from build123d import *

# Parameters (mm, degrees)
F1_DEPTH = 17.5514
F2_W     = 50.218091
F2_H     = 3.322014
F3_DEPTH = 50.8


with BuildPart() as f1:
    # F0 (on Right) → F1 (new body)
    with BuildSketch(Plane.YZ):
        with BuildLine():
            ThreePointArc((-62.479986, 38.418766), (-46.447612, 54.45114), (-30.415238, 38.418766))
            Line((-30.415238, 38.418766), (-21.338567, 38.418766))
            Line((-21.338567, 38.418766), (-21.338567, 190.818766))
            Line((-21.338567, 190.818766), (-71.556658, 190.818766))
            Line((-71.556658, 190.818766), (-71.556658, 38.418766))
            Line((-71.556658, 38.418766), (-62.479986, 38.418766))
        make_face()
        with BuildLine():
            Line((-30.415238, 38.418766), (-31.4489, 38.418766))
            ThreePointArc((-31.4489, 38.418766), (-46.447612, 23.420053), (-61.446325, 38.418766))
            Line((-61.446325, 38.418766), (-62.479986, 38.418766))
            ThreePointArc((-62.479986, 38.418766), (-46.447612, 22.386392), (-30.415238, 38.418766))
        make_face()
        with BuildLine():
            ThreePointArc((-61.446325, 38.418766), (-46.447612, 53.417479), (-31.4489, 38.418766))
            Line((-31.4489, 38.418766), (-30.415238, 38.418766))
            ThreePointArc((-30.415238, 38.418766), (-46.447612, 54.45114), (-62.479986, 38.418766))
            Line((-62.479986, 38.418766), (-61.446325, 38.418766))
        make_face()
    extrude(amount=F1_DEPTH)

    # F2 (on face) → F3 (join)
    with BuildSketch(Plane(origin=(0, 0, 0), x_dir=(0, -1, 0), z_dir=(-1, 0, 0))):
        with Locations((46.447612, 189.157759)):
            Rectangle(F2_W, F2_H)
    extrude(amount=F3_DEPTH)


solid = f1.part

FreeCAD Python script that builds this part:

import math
import FreeCAD as App
import Part
import Sketcher
Q = App.Units.Quantity


def add_polygon(sketch, points):
    """Adds a closed chain of lines whose ends are joined by coincident constraints."""
    first, n = sketch.GeometryCount, len(points)
    for a, b in zip(points, points[1:] + points[:1]):
        sketch.addGeometry(Part.LineSegment(App.Vector(*a, 0), App.Vector(*b, 0)), False)
    for i in range(n):
        sketch.addConstraint(Sketcher.Constraint("Coincident", first + i, 2, first + (i + 1) % n, 1))

doc = App.newDocument("Part")
body = doc.addObject("PartDesign::Body", "Body")

# Sketch on YZ plane
sketch1 = body.newObject("Sketcher::SketchObject", "Sketch")
sketch1.AttachmentSupport = (doc.getObject("YZ_Plane"), [""])
sketch1.MapMode = "FlatFace"
sketch1.addGeometry([
    Part.LineSegment(App.Vector(-30, 38, 0), App.Vector(-21, 38, 0)),  # 0
    Part.LineSegment(App.Vector(-21, 38, 0), App.Vector(-21, 191, 0)),  # 1
    Part.LineSegment(App.Vector(-21, 191, 0), App.Vector(-72, 191, 0)),  # 2
    Part.LineSegment(App.Vector(-72, 191, 0), App.Vector(-72, 38, 0)),  # 3
    Part.LineSegment(App.Vector(-72, 38, 0), App.Vector(-62, 38, 0)),  # 4
    Part.ArcOfCircle(Part.Circle(App.Vector(-46, 38, 0), App.Vector(0, 0, 1), 16), math.radians(180), math.radians(360)),  # 5
    Part.ArcOfCircle(Part.Circle(App.Vector(-46, 38, 0), App.Vector(0, 0, 1), 15), math.radians(0), math.radians(180)),  # 6
    Part.ArcOfCircle(Part.Circle(App.Vector(-46, 38, 0), App.Vector(0, 0, 1), 15), math.radians(180), math.radians(360)),  # 7
], False)
sketch1.addConstraint([
    Sketcher.Constraint("Coincident", 0, 2, 1, 1),
    Sketcher.Constraint("Coincident", 1, 2, 2, 1),
    Sketcher.Constraint("Coincident", 2, 2, 3, 1),
    Sketcher.Constraint("Coincident", 3, 2, 4, 1),
    Sketcher.Constraint("Coincident", 4, 2, 5, 1),
    Sketcher.Constraint("Coincident", 5, 2, 0, 1),
    Sketcher.Constraint("Tangent", 6, 1, 7, 2),
    Sketcher.Constraint("Coincident", 7, 1, 6, 2),
    Sketcher.Constraint("Horizontal", 0),
    Sketcher.Constraint("Vertical", 1),
    Sketcher.Constraint("Horizontal", 2),
    Sketcher.Constraint("Vertical", 3),
    Sketcher.Constraint("Horizontal", 4),
    Sketcher.Constraint("Coincident", 6, 3, 5, 3),
    Sketcher.Constraint("Horizontal", 7, 3, 0, 2),
    Sketcher.Constraint("Horizontal", 0, 2, 3, 2),
    Sketcher.Constraint("Horizontal", 5, 2, 6, 1),
    Sketcher.Constraint("Horizontal", 6, 1, 7, 1),
    Sketcher.Constraint("Equal", 0, 4),
    Sketcher.Constraint("DistanceY", 1, 1, 1, 2, Q("6 in")),
    Sketcher.Constraint("Radius", 5, Q("16.032374 mm")),
    Sketcher.Constraint("Radius", 6, Q("14.998712 mm")),
    Sketcher.Constraint("DistanceX", 0, 1, 0, 2, Q("9.076671 mm")),
    Sketcher.Constraint("DistanceX", 6, 1, -1, 1, Q("31.4489 mm")),
    Sketcher.Constraint("DistanceY", -1, 1, 5, 3, Q("38.418766 mm")),
])
pad1 = body.newObject("PartDesign::Pad", "Pad")
pad1.Profile = sketch1
pad1.Length = Q("0.691 in")

# Sketch on YZ plane
sketch2 = body.newObject("Sketcher::SketchObject", "Sketch001")
sketch2.AttachmentSupport = (doc.getObject("YZ_Plane"), [""])
sketch2.MapMode = "FlatFace"
add_polygon(sketch2, [(-21.3, 190.8), (-21.3, 187.5), (-71.6, 187.5), (-71.6, 190.8)])  # lines 0-3
sketch2.addConstraint([
    Sketcher.Constraint("Vertical", 0),
    Sketcher.Constraint("Horizontal", 1),
    Sketcher.Constraint("Vertical", 2),
    Sketcher.Constraint("Horizontal", 3),
    Sketcher.Constraint("DistanceX", 1, 2, 1, 1, Q("50.218091 mm")),
    Sketcher.Constraint("DistanceY", 0, 2, 0, 1, Q("3.322014 mm")),
    Sketcher.Constraint("DistanceY", -1, 1, 0, 2, Q("187.496752 mm")),
    Sketcher.Constraint("DistanceX", 0, 2, -1, 1, Q("21.338566 mm")),
])
pad2 = body.newObject("PartDesign::Pad", "Pad001")
pad2.Profile = sketch2
pad2.Length = Q("2 in")
pad2.Reversed = True

doc.recompute()
